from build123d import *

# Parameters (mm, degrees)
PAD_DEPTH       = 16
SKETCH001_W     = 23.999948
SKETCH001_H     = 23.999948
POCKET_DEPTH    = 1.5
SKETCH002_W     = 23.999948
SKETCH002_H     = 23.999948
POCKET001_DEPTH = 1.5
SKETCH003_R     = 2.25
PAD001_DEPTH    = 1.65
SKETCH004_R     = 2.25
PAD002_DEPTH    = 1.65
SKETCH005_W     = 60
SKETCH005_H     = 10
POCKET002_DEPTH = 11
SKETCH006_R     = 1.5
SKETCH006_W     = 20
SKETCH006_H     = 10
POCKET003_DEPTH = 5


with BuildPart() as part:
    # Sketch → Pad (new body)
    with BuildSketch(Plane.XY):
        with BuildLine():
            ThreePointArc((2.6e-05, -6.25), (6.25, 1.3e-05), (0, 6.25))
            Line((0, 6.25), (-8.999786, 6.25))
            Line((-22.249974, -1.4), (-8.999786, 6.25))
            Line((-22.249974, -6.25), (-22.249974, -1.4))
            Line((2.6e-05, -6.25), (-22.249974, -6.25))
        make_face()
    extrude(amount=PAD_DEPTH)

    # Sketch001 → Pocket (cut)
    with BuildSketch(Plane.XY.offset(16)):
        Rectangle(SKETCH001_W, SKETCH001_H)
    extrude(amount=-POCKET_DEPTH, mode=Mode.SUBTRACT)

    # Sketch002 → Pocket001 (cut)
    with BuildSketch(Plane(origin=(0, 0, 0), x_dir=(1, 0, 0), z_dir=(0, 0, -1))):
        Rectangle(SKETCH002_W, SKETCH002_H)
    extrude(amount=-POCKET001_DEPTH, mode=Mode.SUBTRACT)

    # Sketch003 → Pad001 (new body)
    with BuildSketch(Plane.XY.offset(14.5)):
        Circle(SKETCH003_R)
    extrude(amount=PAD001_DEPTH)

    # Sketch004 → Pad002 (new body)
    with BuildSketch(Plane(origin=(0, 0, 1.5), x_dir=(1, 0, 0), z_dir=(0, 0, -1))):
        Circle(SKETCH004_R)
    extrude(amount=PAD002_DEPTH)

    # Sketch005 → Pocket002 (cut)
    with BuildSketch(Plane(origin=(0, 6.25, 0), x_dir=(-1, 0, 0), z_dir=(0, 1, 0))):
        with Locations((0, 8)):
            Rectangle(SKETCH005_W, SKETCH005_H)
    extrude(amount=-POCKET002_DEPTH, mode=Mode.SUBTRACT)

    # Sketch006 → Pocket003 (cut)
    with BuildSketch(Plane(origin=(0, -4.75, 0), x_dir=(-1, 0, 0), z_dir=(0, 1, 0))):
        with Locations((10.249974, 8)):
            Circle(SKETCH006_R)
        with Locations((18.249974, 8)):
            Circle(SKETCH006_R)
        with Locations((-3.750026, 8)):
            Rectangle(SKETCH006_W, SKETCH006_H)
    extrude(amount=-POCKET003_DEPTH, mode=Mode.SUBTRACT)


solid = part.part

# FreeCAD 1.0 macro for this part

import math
import FreeCAD as App
import Part
import Sketcher

V = App.Vector
Q = App.Units.Quantity

doc = App.newDocument("Part")
body = doc.addObject("PartDesign::Body", "Body")

# Sketch on XY plane
sketch1 = body.newObject("Sketcher::SketchObject", "Sketch")
sketch1.AttachmentSupport = (doc.getObject("XY_Plane"), [""])
sketch1.MapMode = "FlatFace"
sketch1.addGeometry([
    Part.ArcOfCircle(Part.Circle(V(0, 0, 0), V(0, 0, 1), 6.25), math.radians(-89.999762), math.radians(90)),  # 0
    Part.LineSegment(V(0, 6.25, 0), V(-8.999786, 6.25, 0)),  # 1
    Part.LineSegment(V(-8.999786, 6.25, 0), V(-22.249974, -1.4, 0)),  # 2
    Part.LineSegment(V(-22.249974, -1.4, 0), V(-22.249974, -6.25, 0)),  # 3
    Part.LineSegment(V(-22.249974, -6.25, 0), V(0.000026, -6.25, 0)),  # 4
], False)
sketch1.addConstraint([
    Sketcher.Constraint("Tangent", 0, 2, 1, 1),
    Sketcher.Constraint("Coincident", 1, 2, 2, 1),
    Sketcher.Constraint("Coincident", 2, 2, 3, 1),
    Sketcher.Constraint("Coincident", 3, 2, 4, 1),
    Sketcher.Constraint("Coincident", 4, 2, 0, 1),
    Sketcher.Constraint("Horizontal", 1),
    Sketcher.Constraint("Vertical", 3),
    Sketcher.Constraint("Horizontal", 4),
    Sketcher.Constraint("Coincident", 0, 3, -1, 1),
    Sketcher.Constraint("Angle", 2, Q("-149.999999 deg")),
    Sketcher.Constraint("Radius", 0, 6.25),
    Sketcher.Constraint("Distance", 2, 15.299999),
    Sketcher.Constraint("DistanceX", 4, 1, 4, 2, 22.25),
    Sketcher.Constraint("DistanceX", 1, 2, 1, 1, 8.999786),
])
pad1 = body.newObject("PartDesign::Pad", "Pad")
pad1.Profile = sketch1
pad1.Length = 16

# Sketch on XY plane
sketch2 = body.newObject("Sketcher::SketchObject", "Sketch001")
sketch2.AttachmentSupport = (doc.getObject("XY_Plane"), [""])
sketch2.MapMode = "FlatFace"
sketch2.AttachmentOffset = App.Placement(V(0, 0, 16), App.Rotation())
sketch2.addGeometry([
    Part.LineSegment(V(-11.999974, 11.999974, 0), V(-11.999974, -11.999974, 0)),
    Part.LineSegment(V(-11.999974, -11.999974, 0), V(11.999974, -11.999974, 0)),
    Part.LineSegment(V(11.999974, -11.999974, 0), V(11.999974, 11.999974, 0)),
    Part.LineSegment(V(11.999974, 11.999974, 0), V(-11.999974, 11.999974, 0)),
], False)
sketch2.addConstraint([
    Sketcher.Constraint("Coincident", 0, 2, 1, 1),
    Sketcher.Constraint("Coincident", 1, 2, 2, 1),
    Sketcher.Constraint("Coincident", 2, 2, 3, 1),
    Sketcher.Constraint("Coincident", 3, 2, 0, 1),
    Sketcher.Constraint("Vertical", 0),
    Sketcher.Constraint("Horizontal", 1),
    Sketcher.Constraint("Vertical", 2),
    Sketcher.Constraint("Horizontal", 3),
    Sketcher.Constraint("Symmetric", 0, 2, 2, 2, -1, 1),
    Sketcher.Constraint("Equal", 3, 0),
    Sketcher.Constraint("DistanceX", 1, 1, 1, 2, 23.999948),
])
pocket1 = body.newObject("PartDesign::Pocket", "Pocket")
pocket1.Profile = sketch2
pocket1.Length = 1.5

# Sketch on XY plane
sketch3 = body.newObject("Sketcher::SketchObject", "Sketch002")
sketch3.AttachmentSupport = (doc.getObject("XY_Plane"), [""])
sketch3.MapMode = "FlatFace"
sketch3.addGeometry([
    Part.LineSegment(V(-11.999974, -11.999974, 0), V(-11.999974, 11.999974, 0)),
    Part.LineSegment(V(-11.999974, 11.999974, 0), V(11.999974, 11.999974, 0)),
    Part.LineSegment(V(11.999974, 11.999974, 0), V(11.999974, -11.999974, 0)),
    Part.LineSegment(V(11.999974, -11.999974, 0), V(-11.999974, -11.999974, 0)),
], False)
sketch3.addConstraint([
    Sketcher.Constraint("Coincident", 0, 2, 1, 1),
    Sketcher.Constraint("Coincident", 1, 2, 2, 1),
    Sketcher.Constraint("Coincident", 2, 2, 3, 1),
    Sketcher.Constraint("Coincident", 3, 2, 0, 1),
    Sketcher.Constraint("Vertical", 0),
    Sketcher.Constraint("Horizontal", 1),
    Sketcher.Constraint("Vertical", 2),
    Sketcher.Constraint("Horizontal", 3),
    Sketcher.Constraint("Symmetric", 0, 2, 2, 2, -1, 1),
    Sketcher.Constraint("Equal", 3, 0),
    Sketcher.Constraint("DistanceX", 1, 1, 1, 2, 23.999948),
])
pocket2 = body.newObject("PartDesign::Pocket", "Pocket001")
pocket2.Profile = sketch3
pocket2.Length = 1.5
pocket2.Reversed = True

# Sketch on XY plane
sketch4 = body.newObject("Sketcher::SketchObject", "Sketch003")
sketch4.AttachmentSupport = (doc.getObject("XY_Plane"), [""])
sketch4.MapMode = "FlatFace"
sketch4.AttachmentOffset = App.Placement(V(0, 0, 14.5), App.Rotation())
sketch4.addGeometry(Part.Circle(V(0, 0, 0), V(0, 0, 1), 2.25), False)
sketch4.addConstraint([
    Sketcher.Constraint("Coincident", 0, 3, -1, 1),
    Sketcher.Constraint("Diameter", 0, 4.5),
])
pad2 = body.newObject("PartDesign::Pad", "Pad001")
pad2.Profile = sketch4
pad2.Length = 1.65

# Sketch on XY plane
sketch5 = body.newObject("Sketcher::SketchObject", "Sketch004")
sketch5.AttachmentSupport = (doc.getObject("XY_Plane"), [""])
sketch5.MapMode = "FlatFace"
sketch5.AttachmentOffset = App.Placement(V(0, 0, 1.5), App.Rotation())
sketch5.addGeometry(Part.Circle(V(0, 0, 0), V(0, 0, 1), 2.25), False)
sketch5.addConstraint([
    Sketcher.Constraint("Coincident", 0, 3, -1, 1),
    Sketcher.Constraint("Diameter", 0, 4.5),
])
pad3 = body.newObject("PartDesign::Pad", "Pad002")
pad3.Profile = sketch5
pad3.Length = 1.65
pad3.Reversed = True

# Sketch on XZ plane
sketch6 = body.newObject("Sketcher::SketchObject", "Sketch005")
sketch6.AttachmentSupport = (doc.getObject("XZ_Plane"), [""])
sketch6.MapMode = "FlatFace"
sketch6.AttachmentOffset = App.Placement(V(0, 0, -6.25), App.Rotation())
sketch6.addGeometry([
    Part.LineSegment(V(30, 13, 0), V(30, 3, 0)),
    Part.LineSegment(V(30, 3, 0), V(-30, 3, 0)),
    Part.LineSegment(V(-30, 3, 0), V(-30, 13, 0)),
    Part.LineSegment(V(-30, 13, 0), V(30, 13, 0)),
], False)
sketch6.addConstraint([
    Sketcher.Constraint("Coincident", 0, 2, 1, 1),
    Sketcher.Constraint("Coincident", 1, 2, 2, 1),
    Sketcher.Constraint("Coincident", 2, 2, 3, 1),
    Sketcher.Constraint("Coincident", 3, 2, 0, 1),
    Sketcher.Constraint("Vertical", 0),
    Sketcher.Constraint("Horizontal", 1),
    Sketcher.Constraint("Vertical", 2),
    Sketcher.Constraint("Horizontal", 3),
    Sketcher.Constraint("DistanceX", 1, 2, 1, 1, 60.0),
    Sketcher.Constraint("DistanceY", 0, 2, 0, 1, 10.0),
    Sketcher.Constraint("DistanceX", -1, 1, 0, 2, 30.0),
    Sketcher.Constraint("DistanceY", -1, 1, 0, 2, 3.0),
])
pocket3 = body.newObject("PartDesign::Pocket", "Pocket002")
pocket3.Profile = sketch6
pocket3.Length = 11
pocket3.Reversed = True

# Sketch on XZ plane
sketch7 = body.newObject("Sketcher::SketchObject", "Sketch006")
sketch7.AttachmentSupport = (doc.getObject("XZ_Plane"), [""])
sketch7.MapMode = "FlatFace"
sketch7.AttachmentOffset = App.Placement(V(0, 0, 4.75), App.Rotation())
sketch7.addGeometry([
    Part.Circle(V(-10.249974, 8, 0), V(0, 0, 1), 1.5),  # 0
    Part.Circle(V(-18.249974, 8, 0), V(0, 0, 1), 1.5),  # 1
    Part.LineSegment(V(13.750026, 13, 0), V(13.750026, 3, 0)),  # 2
    Part.LineSegment(V(13.750026, 3, 0), V(-6.249974, 3, 0)),  # 3
    Part.LineSegment(V(-6.249974, 3, 0), V(-6.249974, 13, 0)),  # 4
    Part.LineSegment(V(-6.249974, 13, 0), V(13.750026, 13, 0)),  # 5
], False)
sketch7.addConstraint([
    Sketcher.Constraint("Coincident", 2, 2, 3, 1),
    Sketcher.Constraint("Coincident", 3, 2, 4, 1),
    Sketcher.Constraint("Coincident", 4, 2, 5, 1),
    Sketcher.Constraint("Coincident", 5, 2, 2, 1),
    Sketcher.Constraint("Vertical", 2),
    Sketcher.Constraint("Horizontal", 3),
    Sketcher.Constraint("Vertical", 4),
    Sketcher.Constraint("Horizontal", 5),
    Sketcher.Constraint("Equal", 0, 1),
    Sketcher.Constraint("Horizontal", 0, 3, 1, 3),
    Sketcher.Constraint("Diameter", 0, 3.0),
    Sketcher.Constraint("DistanceX", 3, 2, 3, 1, 20.0),
    Sketcher.Constraint("DistanceY", 2, 2, 2, 1, 10.0),
    Sketcher.Constraint("DistanceY", -1, 1, 0, 3, 8.0),
    Sketcher.Constraint("DistanceY", -1, 1, 2, 2, 3.0),
    Sketcher.Constraint("DistanceX", 1, 3, 0, 3, 8.0),
    Sketcher.Constraint("DistanceX", 0, 3, 2, 2, 24.0),
    Sketcher.Constraint("DistanceX", 0, 3, -1, 1, 10.249974),
])
pocket4 = body.newObject("PartDesign::Pocket", "Pocket003")
pocket4.Profile = sketch7
pocket4.Length = 5
pocket4.Reversed = True

doc.recompute()
